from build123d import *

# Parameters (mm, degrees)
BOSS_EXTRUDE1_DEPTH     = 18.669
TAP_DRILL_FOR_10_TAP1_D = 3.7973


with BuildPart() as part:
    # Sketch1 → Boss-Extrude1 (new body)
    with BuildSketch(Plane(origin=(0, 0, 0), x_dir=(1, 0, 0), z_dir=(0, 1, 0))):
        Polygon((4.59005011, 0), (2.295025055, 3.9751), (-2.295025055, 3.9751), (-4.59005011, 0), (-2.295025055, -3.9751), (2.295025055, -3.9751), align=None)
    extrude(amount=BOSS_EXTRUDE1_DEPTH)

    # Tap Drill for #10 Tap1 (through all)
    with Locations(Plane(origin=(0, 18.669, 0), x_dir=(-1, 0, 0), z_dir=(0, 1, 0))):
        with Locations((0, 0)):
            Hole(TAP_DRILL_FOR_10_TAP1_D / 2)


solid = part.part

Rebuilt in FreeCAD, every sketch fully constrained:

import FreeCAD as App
import Part
import Sketcher

V = App.Vector
Q = App.Units.Quantity


def add_polygon(sketch, points):
    """Adds a closed chain of lines whose ends are joined by coincident constraints."""
    first, n = sketch.GeometryCount, len(points)
    for a, b in zip(points, points[1:] + points[:1]):
        sketch.addGeometry(Part.LineSegment(App.Vector(*a, 0), App.Vector(*b, 0)), False)
    for i in range(n):
        sketch.addConstraint(Sketcher.Constraint("Coincident", first + i, 2, first + (i + 1) % n, 1))

doc = App.newDocument("Part")
params = doc.addObject("Spreadsheet::Sheet", "Params")
for row, (alias, value) in enumerate([
    ("pad1_length", "0.735 in"),
    ("hole_diameter", "0.1495 in"),
], start=1):
    params.set(f"A{row}", alias)
    params.set(f"B{row}", "=" + value)
    params.setAlias(f"B{row}", alias)

body = doc.addObject("PartDesign::Body", "Body")

sketch1 = body.newObject("Sketcher::SketchObject", "Sketch")
sketch1.AttachmentSupport = (doc.getObject("XZ_Plane"), [""])
sketch1.MapMode = "FlatFace"
add_polygon(sketch1, [(4.6, 0), (2.3, -4), (-2.3, -4), (-4.6, 0), (-2.3, 4), (2.3, 4)])
sketch1.addConstraint([
    Sketcher.Constraint("Horizontal", 1),
    Sketcher.Constraint("Horizontal", 4),
    Sketcher.Constraint("Symmetric", 0, 2, 3, 2, -1, 1),
    Sketcher.Constraint("Symmetric", 2, 2, 5, 2, -1, 1),
    Sketcher.Constraint("PointOnObject", 2, 2, -1),
    Sketcher.Constraint("Parallel", 2, 5),
    Sketcher.Constraint("Vertical", 1, 2, 3, 2),
    Sketcher.Constraint("Angle", 0, Q("-120 deg")),
    Sketcher.Constraint("DistanceY", 1, 2, 3, 2, Q("0.313 in")),
    Sketcher.Constraint("DistanceX", 1, 2, 1, 1, 4.59005),
])
pad1 = body.newObject("PartDesign::Pad", "Pad")
pad1.Profile = sketch1
pad1.setExpression("Length", "Params.pad1_length")
pad1.Reversed = True

sketch2 = body.newObject("Sketcher::SketchObject", "Sketch001")
sketch2.AttachmentSupport = (doc.getObject("XZ_Plane"), [""])
sketch2.MapMode = "FlatFace"
sketch2.AttachmentOffset = App.Placement(V(0, 0, -0.735 * 25.4), App.Rotation())
sketch2.addGeometry(Part.Circle(V(0, 0, 0), V(0, 0, 1), 1.9), False)
sketch2.addConstraint([
    Sketcher.Constraint("Coincident", 0, 3, -1, 1),
    Sketcher.Constraint("Diameter", 0, Q("0.1495 in")),
])
doc.recompute()
hole = body.newObject("PartDesign::Hole", "Hole")
hole.Profile = sketch2
hole.ThreadType = "None"
hole.setExpression("Diameter", "Params.hole_diameter")
hole.DepthType = "ThroughAll"
hole.Reversed = True

doc.recompute()
